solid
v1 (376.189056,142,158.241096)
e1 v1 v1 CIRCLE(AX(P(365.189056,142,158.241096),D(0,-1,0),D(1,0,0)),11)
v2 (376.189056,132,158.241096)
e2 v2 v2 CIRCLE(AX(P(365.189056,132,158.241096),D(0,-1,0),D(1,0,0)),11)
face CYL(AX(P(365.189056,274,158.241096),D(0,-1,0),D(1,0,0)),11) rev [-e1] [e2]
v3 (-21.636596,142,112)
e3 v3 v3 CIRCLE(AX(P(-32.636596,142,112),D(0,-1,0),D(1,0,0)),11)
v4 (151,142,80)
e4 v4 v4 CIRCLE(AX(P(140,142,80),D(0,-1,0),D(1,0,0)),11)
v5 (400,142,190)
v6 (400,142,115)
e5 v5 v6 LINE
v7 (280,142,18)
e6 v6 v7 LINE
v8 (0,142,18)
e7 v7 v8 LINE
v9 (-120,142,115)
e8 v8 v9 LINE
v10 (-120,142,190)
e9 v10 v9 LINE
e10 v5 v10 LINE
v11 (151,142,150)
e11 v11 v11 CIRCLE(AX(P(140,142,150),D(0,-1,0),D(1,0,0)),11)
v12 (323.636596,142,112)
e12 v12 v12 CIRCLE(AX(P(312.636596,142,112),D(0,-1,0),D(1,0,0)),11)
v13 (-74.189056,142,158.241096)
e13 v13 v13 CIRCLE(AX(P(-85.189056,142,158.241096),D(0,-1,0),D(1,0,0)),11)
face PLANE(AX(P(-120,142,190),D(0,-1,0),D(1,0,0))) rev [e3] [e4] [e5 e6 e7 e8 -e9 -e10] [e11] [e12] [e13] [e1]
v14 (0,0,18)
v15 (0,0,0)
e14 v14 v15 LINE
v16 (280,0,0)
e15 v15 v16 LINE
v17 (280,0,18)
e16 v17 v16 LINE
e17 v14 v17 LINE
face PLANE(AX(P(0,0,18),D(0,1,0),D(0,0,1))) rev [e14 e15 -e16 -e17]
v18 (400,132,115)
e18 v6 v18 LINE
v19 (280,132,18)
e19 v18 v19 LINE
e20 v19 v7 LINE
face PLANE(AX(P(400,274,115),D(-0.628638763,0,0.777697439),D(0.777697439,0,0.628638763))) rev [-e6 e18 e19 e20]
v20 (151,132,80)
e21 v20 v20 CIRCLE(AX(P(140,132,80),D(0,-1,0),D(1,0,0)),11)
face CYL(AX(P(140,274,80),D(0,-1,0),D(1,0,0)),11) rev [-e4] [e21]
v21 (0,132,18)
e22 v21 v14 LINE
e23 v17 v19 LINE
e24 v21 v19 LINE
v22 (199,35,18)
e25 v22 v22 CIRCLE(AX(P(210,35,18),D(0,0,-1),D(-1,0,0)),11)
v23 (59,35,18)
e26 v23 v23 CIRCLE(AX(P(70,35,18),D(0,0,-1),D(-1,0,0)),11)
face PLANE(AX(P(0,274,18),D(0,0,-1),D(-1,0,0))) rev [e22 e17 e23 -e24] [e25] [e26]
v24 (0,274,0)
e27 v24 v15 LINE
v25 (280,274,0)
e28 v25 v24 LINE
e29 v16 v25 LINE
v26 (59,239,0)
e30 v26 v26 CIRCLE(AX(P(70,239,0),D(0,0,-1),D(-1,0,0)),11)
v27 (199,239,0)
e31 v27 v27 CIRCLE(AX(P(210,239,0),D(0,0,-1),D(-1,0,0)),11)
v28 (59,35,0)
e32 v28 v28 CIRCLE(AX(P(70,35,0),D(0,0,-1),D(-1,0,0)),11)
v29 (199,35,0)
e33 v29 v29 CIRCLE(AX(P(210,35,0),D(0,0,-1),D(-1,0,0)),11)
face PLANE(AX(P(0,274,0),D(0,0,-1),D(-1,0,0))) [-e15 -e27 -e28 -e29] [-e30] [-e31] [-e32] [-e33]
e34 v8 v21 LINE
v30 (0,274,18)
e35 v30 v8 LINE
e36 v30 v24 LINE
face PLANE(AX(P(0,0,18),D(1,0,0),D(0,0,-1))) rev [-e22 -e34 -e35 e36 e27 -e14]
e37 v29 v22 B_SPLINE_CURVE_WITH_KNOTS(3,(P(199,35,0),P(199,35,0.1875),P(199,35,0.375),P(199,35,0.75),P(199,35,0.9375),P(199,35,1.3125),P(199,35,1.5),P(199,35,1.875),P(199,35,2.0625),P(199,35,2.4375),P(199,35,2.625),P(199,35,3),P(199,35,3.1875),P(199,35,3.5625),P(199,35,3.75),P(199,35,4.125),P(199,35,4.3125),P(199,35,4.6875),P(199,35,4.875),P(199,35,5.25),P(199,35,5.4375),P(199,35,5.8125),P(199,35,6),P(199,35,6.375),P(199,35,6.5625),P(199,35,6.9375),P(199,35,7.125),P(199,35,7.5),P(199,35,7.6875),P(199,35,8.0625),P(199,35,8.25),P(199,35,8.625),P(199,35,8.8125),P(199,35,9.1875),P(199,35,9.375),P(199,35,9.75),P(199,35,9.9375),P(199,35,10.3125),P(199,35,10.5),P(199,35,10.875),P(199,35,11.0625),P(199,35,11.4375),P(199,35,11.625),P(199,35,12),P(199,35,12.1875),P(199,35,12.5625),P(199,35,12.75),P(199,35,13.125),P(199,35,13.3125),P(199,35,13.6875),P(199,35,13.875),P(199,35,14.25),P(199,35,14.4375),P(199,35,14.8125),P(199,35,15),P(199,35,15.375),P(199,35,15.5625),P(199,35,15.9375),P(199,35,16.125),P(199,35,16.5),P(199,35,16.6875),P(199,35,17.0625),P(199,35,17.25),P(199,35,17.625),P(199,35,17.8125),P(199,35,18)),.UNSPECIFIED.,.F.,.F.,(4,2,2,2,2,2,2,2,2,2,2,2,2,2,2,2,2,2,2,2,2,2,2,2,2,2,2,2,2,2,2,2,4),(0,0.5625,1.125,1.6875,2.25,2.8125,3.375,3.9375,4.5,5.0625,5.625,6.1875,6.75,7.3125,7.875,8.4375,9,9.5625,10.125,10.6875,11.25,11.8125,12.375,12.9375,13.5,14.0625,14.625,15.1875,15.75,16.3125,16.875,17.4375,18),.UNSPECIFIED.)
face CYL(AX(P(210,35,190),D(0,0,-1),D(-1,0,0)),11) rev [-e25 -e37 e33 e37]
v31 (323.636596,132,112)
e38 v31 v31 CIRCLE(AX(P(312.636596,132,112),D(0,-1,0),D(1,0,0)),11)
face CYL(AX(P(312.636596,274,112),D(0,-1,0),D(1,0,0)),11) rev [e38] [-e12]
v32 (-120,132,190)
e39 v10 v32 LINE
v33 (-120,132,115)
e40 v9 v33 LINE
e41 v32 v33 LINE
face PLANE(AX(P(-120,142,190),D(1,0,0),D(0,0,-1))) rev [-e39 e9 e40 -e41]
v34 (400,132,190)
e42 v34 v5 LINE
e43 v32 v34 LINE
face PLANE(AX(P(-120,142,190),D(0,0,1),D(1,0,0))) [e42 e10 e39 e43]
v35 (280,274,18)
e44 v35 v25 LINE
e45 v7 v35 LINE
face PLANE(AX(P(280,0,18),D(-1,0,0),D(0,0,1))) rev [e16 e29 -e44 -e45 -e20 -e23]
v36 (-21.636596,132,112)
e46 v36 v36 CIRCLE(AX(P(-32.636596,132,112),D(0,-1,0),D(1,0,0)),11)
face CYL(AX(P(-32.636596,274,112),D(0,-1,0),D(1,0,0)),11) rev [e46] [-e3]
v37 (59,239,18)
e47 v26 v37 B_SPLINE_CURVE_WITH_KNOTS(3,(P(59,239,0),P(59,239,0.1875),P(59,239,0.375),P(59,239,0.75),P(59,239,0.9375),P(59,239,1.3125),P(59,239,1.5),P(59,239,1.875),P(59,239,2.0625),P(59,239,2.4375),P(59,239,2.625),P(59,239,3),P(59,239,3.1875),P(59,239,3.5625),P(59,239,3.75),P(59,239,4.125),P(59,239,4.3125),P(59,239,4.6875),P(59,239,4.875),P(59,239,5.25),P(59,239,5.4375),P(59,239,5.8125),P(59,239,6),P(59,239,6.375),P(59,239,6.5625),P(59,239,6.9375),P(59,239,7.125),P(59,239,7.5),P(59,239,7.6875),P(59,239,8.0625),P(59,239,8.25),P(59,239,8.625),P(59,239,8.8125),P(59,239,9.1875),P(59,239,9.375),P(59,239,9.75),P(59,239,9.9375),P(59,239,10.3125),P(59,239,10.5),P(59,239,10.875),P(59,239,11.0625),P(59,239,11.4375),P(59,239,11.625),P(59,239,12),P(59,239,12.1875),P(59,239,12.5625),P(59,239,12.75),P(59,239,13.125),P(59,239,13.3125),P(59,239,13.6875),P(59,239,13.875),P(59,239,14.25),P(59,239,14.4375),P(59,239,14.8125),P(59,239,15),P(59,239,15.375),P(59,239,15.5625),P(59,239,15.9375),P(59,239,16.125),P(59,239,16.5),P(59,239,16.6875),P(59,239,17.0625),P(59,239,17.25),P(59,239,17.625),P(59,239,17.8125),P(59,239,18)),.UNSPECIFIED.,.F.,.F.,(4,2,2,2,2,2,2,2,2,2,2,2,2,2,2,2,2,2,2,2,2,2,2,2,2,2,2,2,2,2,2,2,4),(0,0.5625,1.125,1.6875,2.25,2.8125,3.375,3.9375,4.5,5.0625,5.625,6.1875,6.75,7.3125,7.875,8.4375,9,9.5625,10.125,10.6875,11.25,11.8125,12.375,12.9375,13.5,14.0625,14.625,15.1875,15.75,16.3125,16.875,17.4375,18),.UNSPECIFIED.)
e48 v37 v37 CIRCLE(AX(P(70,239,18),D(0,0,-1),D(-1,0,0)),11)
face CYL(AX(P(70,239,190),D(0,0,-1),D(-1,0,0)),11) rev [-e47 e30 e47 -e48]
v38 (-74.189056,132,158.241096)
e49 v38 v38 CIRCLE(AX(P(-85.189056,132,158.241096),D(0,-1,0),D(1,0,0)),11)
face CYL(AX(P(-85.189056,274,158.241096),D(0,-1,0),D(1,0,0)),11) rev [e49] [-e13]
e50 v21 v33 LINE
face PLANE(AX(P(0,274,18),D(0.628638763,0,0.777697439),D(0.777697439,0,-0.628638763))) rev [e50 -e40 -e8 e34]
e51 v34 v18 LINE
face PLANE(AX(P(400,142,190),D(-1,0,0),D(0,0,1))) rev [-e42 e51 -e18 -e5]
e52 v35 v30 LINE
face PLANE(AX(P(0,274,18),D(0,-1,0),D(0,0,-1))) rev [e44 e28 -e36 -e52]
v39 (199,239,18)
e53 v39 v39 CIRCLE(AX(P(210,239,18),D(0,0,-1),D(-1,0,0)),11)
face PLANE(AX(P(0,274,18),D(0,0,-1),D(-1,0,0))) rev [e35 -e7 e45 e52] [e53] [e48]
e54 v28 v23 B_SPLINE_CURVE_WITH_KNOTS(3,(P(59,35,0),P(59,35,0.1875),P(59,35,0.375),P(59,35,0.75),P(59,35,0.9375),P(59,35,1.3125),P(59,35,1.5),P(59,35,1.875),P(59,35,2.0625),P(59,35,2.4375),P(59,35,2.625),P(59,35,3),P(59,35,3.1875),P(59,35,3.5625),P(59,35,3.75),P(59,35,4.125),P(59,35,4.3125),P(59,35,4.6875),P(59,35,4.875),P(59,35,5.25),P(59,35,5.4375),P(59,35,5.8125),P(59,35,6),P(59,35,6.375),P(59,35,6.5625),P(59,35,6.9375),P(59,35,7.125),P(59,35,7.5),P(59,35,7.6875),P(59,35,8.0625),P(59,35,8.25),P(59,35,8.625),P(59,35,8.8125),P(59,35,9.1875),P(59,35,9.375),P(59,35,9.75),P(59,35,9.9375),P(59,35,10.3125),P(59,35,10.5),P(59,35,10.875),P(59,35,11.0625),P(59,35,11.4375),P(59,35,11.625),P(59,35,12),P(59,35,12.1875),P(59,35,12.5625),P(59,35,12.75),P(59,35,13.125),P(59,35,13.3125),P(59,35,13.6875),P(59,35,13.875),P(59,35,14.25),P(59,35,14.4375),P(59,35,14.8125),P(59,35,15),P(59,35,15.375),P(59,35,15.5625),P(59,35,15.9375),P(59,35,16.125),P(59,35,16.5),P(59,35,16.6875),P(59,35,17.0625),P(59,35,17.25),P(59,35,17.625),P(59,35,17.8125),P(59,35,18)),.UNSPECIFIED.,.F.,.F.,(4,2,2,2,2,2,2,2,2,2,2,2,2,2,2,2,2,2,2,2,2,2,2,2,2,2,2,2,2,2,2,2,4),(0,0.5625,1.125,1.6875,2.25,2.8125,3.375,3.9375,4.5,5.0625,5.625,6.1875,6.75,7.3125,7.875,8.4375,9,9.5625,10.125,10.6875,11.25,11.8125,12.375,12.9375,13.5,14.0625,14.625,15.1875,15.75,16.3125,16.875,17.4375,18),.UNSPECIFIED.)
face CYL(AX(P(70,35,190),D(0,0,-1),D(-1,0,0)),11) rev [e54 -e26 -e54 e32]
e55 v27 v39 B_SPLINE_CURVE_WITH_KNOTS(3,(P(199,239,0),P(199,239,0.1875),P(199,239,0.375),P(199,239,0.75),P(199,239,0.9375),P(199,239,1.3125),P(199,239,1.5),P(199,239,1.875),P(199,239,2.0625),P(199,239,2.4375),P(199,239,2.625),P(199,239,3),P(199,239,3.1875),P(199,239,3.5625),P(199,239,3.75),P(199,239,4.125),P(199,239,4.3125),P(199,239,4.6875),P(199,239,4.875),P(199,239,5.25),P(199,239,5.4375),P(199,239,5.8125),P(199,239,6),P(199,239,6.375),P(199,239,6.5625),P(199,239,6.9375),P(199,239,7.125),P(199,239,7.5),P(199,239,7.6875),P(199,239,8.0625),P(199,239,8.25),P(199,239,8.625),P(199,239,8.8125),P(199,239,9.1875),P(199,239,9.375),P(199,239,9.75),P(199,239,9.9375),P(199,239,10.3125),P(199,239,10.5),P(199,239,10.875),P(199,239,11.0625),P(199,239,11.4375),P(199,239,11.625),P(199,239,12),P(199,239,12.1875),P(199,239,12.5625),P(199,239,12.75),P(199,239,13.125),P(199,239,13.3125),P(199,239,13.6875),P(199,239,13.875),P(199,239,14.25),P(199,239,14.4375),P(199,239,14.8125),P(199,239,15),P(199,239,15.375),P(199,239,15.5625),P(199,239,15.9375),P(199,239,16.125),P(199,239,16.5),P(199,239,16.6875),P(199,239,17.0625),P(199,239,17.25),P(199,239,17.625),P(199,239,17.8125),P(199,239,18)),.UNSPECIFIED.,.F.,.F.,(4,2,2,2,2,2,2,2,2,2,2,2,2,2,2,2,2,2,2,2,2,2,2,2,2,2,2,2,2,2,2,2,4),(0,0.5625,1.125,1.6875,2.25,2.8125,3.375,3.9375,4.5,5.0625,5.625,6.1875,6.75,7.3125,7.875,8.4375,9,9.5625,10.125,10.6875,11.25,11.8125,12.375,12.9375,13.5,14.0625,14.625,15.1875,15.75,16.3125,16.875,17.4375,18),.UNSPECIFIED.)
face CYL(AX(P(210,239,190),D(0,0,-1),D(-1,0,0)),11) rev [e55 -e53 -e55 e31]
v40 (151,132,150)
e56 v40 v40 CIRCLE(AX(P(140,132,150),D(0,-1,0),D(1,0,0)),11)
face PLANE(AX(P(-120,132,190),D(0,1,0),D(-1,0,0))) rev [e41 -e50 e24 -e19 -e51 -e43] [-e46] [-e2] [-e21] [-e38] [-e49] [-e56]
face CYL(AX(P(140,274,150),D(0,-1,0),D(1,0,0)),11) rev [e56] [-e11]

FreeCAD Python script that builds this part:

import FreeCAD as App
import Part
import Sketcher
Q = App.Units.Quantity


def add_polygon(sketch, points):
    """Adds a closed chain of lines whose ends are joined by coincident constraints."""
    first, n = sketch.GeometryCount, len(points)
    for a, b in zip(points, points[1:] + points[:1]):
        sketch.addGeometry(Part.LineSegment(App.Vector(*a, 0), App.Vector(*b, 0)), False)
    for i in range(n):
        sketch.addConstraint(Sketcher.Constraint("Coincident", first + i, 2, first + (i + 1) % n, 1))

doc = App.newDocument("Part")
body = doc.addObject("PartDesign::Body", "Body")

sketch1 = body.newObject("Sketcher::SketchObject", "Sketch")
sketch1.AttachmentSupport = (doc.getObject("XY_Plane"), [""])
sketch1.MapMode = "FlatFace"
add_polygon(sketch1, [(0, 274), (0, 0), (280, 0), (280, 274)])
sketch1.addConstraint([
    Sketcher.Constraint("Vertical", 0),
    Sketcher.Constraint("Horizontal", 1),
    Sketcher.Constraint("Vertical", 2),
    Sketcher.Constraint("Horizontal", 3),
    Sketcher.Constraint("Coincident", 0, 2, -1, 1),
    Sketcher.Constraint("DistanceX", 1, 1, 1, 2, Q("280 mm")),
    Sketcher.Constraint("DistanceY", 0, 2, 0, 1, Q("274 mm")),
])
pad1 = body.newObject("PartDesign::Pad", "Pad")
pad1.Profile = sketch1
pad1.Length = 18

sketch2 = body.newObject("Sketcher::SketchObject", "Sketch001")
sketch2.AttachmentSupport = (doc.getObject("XY_Plane"), [""])
sketch2.MapMode = "FlatFace"
sketch2.AttachmentOffset = App.Placement(App.Vector(0, 0, 18), App.Rotation())
add_polygon(sketch2, [(-120, 142), (-120, 132), (400, 132), (400, 142)])
sketch2.addConstraint([
    Sketcher.Constraint("Vertical", 0),
    Sketcher.Constraint("Horizontal", 1),
    Sketcher.Constraint("Vertical", 2),
    Sketcher.Constraint("Horizontal", 3),
    Sketcher.Constraint("DistanceX", 1, 1, 1, 2, Q("520 mm")),
    Sketcher.Constraint("DistanceY", 0, 2, 0, 1, Q("10 mm")),
    Sketcher.Constraint("DistanceX", 0, 2, -1, 1, Q("120 mm")),
    Sketcher.Constraint("DistanceY", -1, 1, 0, 2, Q("132 mm")),
])
pad2 = body.newObject("PartDesign::Pad", "Pad001")
pad2.Profile = sketch2
pad2.Length = 172

sketch3 = body.newObject("Sketcher::SketchObject", "Sketch002")
sketch3.AttachmentSupport = (doc.getObject("XZ_Plane"), [""])
sketch3.MapMode = "FlatFace"
sketch3.AttachmentOffset = App.Placement(App.Vector(0, 0, -132), App.Rotation())
add_polygon(sketch3, [(0, 18), (-120, 115), (-120, 18)])
sketch3.addConstraint([
    Sketcher.Constraint("Vertical", 1),
    Sketcher.Constraint("Horizontal", 2),
    Sketcher.Constraint("PointOnObject", 2, 2, -2),
    Sketcher.Constraint("DistanceX", 2, 1, 2, 2, Q("120 mm")),
    Sketcher.Constraint("DistanceY", 1, 2, 1, 1, Q("97 mm")),
    Sketcher.Constraint("DistanceY", -1, 1, 0, 2, Q("115 mm")),
])
pocket1 = body.newObject("PartDesign::Pocket", "Pocket")
pocket1.Profile = sketch3
pocket1.Type = "ThroughAll"

sketch4 = body.newObject("Sketcher::SketchObject", "Sketch003")
sketch4.AttachmentSupport = (doc.getObject("XZ_Plane"), [""])
sketch4.MapMode = "FlatFace"
sketch4.AttachmentOffset = App.Placement(App.Vector(0, 0, -132), App.Rotation())
add_polygon(sketch4, [(400, 115), (280, 18), (400, 18)])
sketch4.addConstraint([
    Sketcher.Constraint("Horizontal", 1),
    Sketcher.Constraint("Vertical", 2),
    Sketcher.Constraint("DistanceX", 1, 1, 1, 2, Q("120 mm")),
    Sketcher.Constraint("DistanceY", 2, 1, 2, 2, Q("97 mm")),
    Sketcher.Constraint("DistanceX", -1, 1, 0, 2, Q("280 mm")),
    Sketcher.Constraint("DistanceY", -1, 1, 0, 2, Q("18 mm")),
])
pocket2 = body.newObject("PartDesign::Pocket", "Pocket001")
pocket2.Profile = sketch4
pocket2.Type = "ThroughAll"

sketch5 = body.newObject("Sketcher::SketchObject", "Sketch004")
sketch5.AttachmentSupport = (doc.getObject("XY_Plane"), [""])
sketch5.MapMode = "FlatFace"
sketch5.addGeometry(Part.Circle(App.Vector(210, 35, 0), App.Vector(0, 0, 1), 11), False)
sketch5.addConstraint([
    Sketcher.Constraint("Diameter", 0, Q("22 mm")),
    Sketcher.Constraint("DistanceX", -1, 1, 0, 3, Q("210 mm")),
    Sketcher.Constraint("DistanceY", -1, 1, 0, 3, Q("35 mm")),
])
pocket3 = body.newObject("PartDesign::Pocket", "Pocket002")
pocket3.Profile = sketch5
pocket3.Type = "ThroughAll"
pocket3.Reversed = True

sketch6 = body.newObject("Sketcher::SketchObject", "Sketch005")
sketch6.AttachmentSupport = (doc.getObject("XY_Plane"), [""])
sketch6.MapMode = "FlatFace"
sketch6.addGeometry(Part.Circle(App.Vector(210, 239, 0), App.Vector(0, 0, 1), 11), False)
sketch6.addConstraint([
    Sketcher.Constraint("Diameter", 0, Q("22 mm")),
    Sketcher.Constraint("DistanceX", -1, 1, 0, 3, Q("210 mm")),
    Sketcher.Constraint("DistanceY", -1, 1, 0, 3, Q("239 mm")),
])
pocket4 = body.newObject("PartDesign::Pocket", "Pocket003")
pocket4.Profile = sketch6
pocket4.Type = "ThroughAll"
pocket4.Reversed = True

sketch7 = body.newObject("Sketcher::SketchObject", "Sketch006")
sketch7.AttachmentSupport = (doc.getObject("XY_Plane"), [""])
sketch7.MapMode = "FlatFace"
sketch7.addGeometry(Part.Circle(App.Vector(70, 35, 0), App.Vector(0, 0, 1), 11), False)
sketch7.addConstraint([
    Sketcher.Constraint("Diameter", 0, Q("22 mm")),
    Sketcher.Constraint("DistanceX", -1, 1, 0, 3, Q("70 mm")),
    Sketcher.Constraint("DistanceY", -1, 1, 0, 3, Q("35 mm")),
])
pocket5 = body.newObject("PartDesign::Pocket", "Pocket004")
pocket5.Profile = sketch7
pocket5.Type = "ThroughAll"
pocket5.Reversed = True

sketch8 = body.newObject("Sketcher::SketchObject", "Sketch007")
sketch8.AttachmentSupport = (doc.getObject("XY_Plane"), [""])
sketch8.MapMode = "FlatFace"
sketch8.addGeometry(Part.Circle(App.Vector(70, 239, 0), App.Vector(0, 0, 1), 11), False)
sketch8.addConstraint([
    Sketcher.Constraint("Diameter", 0, Q("22 mm")),
    Sketcher.Constraint("DistanceX", -1, 1, 0, 3, Q("70 mm")),
    Sketcher.Constraint("DistanceY", -1, 1, 0, 3, Q("239 mm")),
])
pocket6 = body.newObject("PartDesign::Pocket", "Pocket005")
pocket6.Profile = sketch8
pocket6.Type = "ThroughAll"
pocket6.Reversed = True

sketch9 = body.newObject("Sketcher::SketchObject", "Sketch008")
sketch9.AttachmentSupport = (doc.getObject("XZ_Plane"), [""])
sketch9.MapMode = "FlatFace"
sketch9.AttachmentOffset = App.Placement(App.Vector(0, 0, -132), App.Rotation())
sketch9.addGeometry([
    Part.Circle(App.Vector(140, 80, 0), App.Vector(0, 0, 1), 11),
    Part.Circle(App.Vector(140, 150, 0), App.Vector(0, 0, 1), 11),
    Part.Circle(App.Vector(-85.189056, 158.241096, 0), App.Vector(0, 0, 1), 11),
    Part.Circle(App.Vector(-32.636596, 112, 0), App.Vector(0, 0, 1), 11),
    Part.Circle(App.Vector(365.189056, 158.241096, 0), App.Vector(0, 0, 1), 11),
    Part.Circle(App.Vector(312.636596, 112, 0), App.Vector(0, 0, 1), 11),
], False)
sketch9.addConstraint([
    Sketcher.Constraint("Equal", 0, 1),
    Sketcher.Constraint("Equal", 1, 2),
    Sketcher.Constraint("Equal", 2, 3),
    Sketcher.Constraint("Equal", 3, 4),
    Sketcher.Constraint("Equal", 4, 5),
    Sketcher.Constraint("Horizontal", 2, 3, 4, 3),
    Sketcher.Constraint("Horizontal", 3, 3, 5, 3),
    Sketcher.Constraint("Vertical", 0, 3, 1, 3),
    Sketcher.Constraint("Diameter", 0, Q("22 mm")),
    Sketcher.Constraint("DistanceX", -1, 1, 0, 3, Q("140 mm")),
    Sketcher.Constraint("DistanceY", -1, 1, 0, 3, Q("80 mm")),
    Sketcher.Constraint("DistanceY", -1, 1, 1, 3, Q("150 mm")),
    Sketcher.Constraint("DistanceY", -1, 1, 3, 3, Q("112 mm")),
    Sketcher.Constraint("DistanceX", 2, 3, 3, 3, Q("52.55246 mm")),
    Sketcher.Constraint("DistanceX", 3, 3, 4, 3, Q("397.825652 mm")),
    Sketcher.Constraint("DistanceX", 5, 3, 4, 3, Q("52.55246 mm")),
    Sketcher.Constraint("DistanceX", 2, 3, -1, 1, Q("85.189056 mm")),
    Sketcher.Constraint("DistanceY", -1, 1, 2, 3, Q("158.241096 mm")),
])
pocket7 = body.newObject("PartDesign::Pocket", "Pocket006")
pocket7.Profile = sketch9
pocket7.Type = "ThroughAll"

doc.recompute()
